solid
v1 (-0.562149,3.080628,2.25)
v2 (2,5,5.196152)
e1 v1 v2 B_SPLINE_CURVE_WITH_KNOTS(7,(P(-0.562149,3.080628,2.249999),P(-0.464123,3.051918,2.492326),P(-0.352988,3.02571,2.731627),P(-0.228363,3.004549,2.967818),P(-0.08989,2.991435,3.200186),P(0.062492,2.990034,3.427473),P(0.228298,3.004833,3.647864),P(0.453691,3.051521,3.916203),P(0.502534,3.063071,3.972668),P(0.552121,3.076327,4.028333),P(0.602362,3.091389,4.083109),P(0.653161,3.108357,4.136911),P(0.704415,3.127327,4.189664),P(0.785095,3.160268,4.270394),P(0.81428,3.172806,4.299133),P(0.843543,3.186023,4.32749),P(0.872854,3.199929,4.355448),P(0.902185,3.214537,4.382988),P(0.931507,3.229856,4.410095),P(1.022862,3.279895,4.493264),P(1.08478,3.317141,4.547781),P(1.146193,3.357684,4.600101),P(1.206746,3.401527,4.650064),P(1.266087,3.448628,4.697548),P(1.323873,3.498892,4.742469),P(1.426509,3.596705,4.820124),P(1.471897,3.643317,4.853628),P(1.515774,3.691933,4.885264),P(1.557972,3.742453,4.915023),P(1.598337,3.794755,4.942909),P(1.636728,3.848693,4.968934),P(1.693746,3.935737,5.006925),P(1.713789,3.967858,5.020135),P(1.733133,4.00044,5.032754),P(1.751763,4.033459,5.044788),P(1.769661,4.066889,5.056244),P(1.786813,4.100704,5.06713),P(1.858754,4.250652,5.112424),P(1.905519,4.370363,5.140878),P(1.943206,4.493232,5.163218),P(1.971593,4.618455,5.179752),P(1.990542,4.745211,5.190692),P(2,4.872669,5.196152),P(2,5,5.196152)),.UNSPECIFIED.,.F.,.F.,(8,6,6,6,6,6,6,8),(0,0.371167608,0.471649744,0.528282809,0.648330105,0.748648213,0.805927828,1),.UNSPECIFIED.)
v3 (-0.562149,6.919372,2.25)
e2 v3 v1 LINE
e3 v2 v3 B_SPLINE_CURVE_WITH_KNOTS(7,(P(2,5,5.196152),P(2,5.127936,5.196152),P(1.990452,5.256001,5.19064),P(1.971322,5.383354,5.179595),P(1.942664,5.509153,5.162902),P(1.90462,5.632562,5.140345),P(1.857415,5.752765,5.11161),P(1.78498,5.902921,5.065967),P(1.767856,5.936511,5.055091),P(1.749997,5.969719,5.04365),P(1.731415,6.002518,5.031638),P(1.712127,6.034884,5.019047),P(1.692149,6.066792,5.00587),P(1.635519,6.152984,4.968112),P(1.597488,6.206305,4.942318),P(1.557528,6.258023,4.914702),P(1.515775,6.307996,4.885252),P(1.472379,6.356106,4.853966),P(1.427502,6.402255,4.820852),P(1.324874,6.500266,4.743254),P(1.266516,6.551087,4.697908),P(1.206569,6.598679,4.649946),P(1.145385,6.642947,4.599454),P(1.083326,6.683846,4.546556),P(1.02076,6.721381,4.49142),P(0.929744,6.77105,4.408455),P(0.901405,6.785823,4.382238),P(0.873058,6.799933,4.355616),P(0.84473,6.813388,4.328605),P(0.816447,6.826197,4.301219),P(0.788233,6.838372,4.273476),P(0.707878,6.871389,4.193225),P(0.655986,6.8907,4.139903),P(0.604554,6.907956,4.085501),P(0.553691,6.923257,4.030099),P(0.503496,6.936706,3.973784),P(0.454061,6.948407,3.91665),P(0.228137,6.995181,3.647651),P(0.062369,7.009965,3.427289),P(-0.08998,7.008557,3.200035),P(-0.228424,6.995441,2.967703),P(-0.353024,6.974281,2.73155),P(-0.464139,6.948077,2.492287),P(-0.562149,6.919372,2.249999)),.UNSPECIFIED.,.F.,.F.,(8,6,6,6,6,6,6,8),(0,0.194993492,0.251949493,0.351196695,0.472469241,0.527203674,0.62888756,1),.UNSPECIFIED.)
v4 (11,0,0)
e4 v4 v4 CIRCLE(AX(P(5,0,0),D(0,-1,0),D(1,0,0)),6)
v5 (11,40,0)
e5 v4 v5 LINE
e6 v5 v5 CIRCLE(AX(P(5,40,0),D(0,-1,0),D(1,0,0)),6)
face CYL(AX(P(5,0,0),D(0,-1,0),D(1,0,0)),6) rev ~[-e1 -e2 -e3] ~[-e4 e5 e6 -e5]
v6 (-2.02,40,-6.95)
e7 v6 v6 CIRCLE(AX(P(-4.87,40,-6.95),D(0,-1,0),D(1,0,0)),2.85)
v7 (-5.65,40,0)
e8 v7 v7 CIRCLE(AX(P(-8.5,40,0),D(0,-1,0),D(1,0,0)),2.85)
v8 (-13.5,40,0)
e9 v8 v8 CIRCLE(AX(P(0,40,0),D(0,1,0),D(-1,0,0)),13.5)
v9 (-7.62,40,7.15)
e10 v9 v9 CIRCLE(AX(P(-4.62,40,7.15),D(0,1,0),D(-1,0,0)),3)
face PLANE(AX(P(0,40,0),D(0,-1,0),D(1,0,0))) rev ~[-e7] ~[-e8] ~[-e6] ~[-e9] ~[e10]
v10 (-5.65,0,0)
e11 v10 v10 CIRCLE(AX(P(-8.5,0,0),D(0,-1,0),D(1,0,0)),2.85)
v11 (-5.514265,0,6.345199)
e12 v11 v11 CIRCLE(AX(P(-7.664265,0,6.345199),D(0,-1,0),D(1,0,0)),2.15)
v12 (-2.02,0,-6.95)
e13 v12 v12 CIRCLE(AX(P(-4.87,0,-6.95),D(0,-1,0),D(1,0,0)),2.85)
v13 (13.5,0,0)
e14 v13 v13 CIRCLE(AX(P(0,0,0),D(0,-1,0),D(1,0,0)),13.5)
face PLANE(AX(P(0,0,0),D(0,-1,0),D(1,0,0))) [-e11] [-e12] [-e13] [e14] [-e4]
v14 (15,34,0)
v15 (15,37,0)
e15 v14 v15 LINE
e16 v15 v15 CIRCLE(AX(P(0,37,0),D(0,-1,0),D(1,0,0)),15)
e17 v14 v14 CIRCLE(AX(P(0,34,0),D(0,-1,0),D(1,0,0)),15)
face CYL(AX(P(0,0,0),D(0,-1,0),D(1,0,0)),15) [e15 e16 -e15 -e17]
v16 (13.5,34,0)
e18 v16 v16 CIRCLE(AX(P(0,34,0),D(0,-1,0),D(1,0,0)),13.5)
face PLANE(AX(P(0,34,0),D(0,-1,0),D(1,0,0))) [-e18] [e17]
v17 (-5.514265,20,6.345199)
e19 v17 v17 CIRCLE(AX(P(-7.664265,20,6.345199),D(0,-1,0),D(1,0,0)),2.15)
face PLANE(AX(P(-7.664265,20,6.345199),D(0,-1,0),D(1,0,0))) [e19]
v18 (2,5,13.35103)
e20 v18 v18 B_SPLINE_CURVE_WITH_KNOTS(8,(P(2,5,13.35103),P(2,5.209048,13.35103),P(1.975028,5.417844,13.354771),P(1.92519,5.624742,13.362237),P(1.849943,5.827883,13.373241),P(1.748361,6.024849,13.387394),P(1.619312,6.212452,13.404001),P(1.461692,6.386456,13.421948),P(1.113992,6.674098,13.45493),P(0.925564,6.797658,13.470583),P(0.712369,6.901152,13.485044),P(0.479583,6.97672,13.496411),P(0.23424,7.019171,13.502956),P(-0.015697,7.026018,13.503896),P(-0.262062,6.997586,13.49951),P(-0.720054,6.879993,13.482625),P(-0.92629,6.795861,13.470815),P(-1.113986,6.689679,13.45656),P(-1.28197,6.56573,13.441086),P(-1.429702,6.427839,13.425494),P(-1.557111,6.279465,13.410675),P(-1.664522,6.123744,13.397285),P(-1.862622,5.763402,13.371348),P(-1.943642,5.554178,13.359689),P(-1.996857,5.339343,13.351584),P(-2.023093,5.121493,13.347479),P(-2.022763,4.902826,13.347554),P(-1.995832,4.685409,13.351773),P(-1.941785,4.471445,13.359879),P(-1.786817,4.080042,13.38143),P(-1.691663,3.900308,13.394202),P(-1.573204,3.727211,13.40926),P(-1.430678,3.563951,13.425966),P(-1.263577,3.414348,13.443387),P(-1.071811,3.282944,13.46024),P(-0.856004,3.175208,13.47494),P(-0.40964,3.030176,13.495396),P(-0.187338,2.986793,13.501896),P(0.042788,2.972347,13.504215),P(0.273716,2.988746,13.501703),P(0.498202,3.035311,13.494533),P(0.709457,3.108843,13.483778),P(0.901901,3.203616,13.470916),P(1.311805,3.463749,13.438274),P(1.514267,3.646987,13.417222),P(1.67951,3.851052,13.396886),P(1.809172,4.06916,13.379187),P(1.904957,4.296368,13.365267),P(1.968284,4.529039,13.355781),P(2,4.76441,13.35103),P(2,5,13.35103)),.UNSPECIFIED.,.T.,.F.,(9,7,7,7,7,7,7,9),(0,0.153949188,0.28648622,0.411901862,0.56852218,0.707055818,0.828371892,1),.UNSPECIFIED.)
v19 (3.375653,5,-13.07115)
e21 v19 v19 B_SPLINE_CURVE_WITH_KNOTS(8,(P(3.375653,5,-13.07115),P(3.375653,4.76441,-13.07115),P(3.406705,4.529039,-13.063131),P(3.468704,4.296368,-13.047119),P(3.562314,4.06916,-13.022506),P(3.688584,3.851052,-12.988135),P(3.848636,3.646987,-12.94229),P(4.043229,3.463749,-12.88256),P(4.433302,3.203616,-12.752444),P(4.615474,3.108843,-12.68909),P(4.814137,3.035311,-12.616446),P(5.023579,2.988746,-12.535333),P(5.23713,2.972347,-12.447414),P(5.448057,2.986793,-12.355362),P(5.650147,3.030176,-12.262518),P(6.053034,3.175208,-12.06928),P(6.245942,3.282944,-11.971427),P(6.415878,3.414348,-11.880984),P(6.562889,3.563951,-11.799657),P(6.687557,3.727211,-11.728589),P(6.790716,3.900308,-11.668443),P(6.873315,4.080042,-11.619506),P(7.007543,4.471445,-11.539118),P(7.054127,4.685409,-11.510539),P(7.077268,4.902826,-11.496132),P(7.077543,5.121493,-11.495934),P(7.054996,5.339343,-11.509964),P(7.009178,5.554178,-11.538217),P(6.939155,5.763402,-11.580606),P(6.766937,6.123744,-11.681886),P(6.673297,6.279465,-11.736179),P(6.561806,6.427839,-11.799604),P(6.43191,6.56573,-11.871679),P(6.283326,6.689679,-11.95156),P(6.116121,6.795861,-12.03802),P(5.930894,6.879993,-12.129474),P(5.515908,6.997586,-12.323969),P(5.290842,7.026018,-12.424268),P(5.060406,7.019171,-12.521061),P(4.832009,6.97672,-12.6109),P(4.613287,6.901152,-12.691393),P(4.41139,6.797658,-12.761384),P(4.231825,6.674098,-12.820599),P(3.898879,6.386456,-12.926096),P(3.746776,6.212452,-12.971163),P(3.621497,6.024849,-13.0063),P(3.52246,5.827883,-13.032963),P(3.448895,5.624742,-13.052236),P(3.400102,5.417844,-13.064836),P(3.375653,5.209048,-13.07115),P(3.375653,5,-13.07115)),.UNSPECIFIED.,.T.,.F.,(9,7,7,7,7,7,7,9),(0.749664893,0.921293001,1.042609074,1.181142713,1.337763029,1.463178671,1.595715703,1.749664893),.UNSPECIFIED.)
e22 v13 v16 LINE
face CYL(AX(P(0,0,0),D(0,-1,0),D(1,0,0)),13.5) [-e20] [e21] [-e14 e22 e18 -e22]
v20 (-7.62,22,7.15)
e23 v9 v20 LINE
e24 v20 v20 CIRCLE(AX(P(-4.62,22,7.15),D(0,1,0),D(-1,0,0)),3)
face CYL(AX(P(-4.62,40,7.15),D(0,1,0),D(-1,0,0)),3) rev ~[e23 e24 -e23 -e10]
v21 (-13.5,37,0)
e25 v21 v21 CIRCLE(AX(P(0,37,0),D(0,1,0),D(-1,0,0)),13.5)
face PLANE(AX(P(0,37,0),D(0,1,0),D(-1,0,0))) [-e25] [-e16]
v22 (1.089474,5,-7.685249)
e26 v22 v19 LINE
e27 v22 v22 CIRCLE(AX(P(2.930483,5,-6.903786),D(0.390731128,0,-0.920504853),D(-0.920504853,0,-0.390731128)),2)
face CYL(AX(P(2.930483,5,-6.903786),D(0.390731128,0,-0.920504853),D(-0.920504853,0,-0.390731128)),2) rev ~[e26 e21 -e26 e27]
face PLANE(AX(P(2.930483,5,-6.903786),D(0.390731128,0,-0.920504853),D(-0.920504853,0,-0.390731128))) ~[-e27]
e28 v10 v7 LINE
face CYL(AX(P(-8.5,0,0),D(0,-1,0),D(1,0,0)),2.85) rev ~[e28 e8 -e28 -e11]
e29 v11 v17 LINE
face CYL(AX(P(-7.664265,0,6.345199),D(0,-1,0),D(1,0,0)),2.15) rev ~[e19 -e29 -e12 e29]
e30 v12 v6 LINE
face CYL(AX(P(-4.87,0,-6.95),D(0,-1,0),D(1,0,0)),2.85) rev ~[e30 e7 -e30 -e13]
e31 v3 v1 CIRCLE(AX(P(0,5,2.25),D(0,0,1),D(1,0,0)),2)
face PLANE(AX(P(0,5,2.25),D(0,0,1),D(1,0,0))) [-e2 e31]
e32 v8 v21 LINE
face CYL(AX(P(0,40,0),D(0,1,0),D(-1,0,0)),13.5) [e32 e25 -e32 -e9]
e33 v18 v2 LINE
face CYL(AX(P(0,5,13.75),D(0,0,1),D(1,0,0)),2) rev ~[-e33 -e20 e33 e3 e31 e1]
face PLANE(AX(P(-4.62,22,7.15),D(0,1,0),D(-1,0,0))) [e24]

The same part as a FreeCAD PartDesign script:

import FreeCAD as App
import Part
import Sketcher

V = App.Vector
Q = App.Units.Quantity

doc = App.newDocument("Part")
params = doc.addObject("Spreadsheet::Sheet", "Params")
for row, (alias, value) in enumerate([
    ("sketch1_diameter", "30 mm"),
    ("pad1_length", "40 mm"),
    ("sketch2_diameter", "27 mm"),
    ("pocket1_length", "34 mm"),
    ("sketch3_diameter", "27 mm"),
    ("pocket2_length", "3 mm"),
    ("sketch4_diameter", "12 mm"),
    ("sketch5_diameter", "5.7 mm"),
    ("sketch6_diameter", "5.7 mm"),
    ("sketch7_diameter", "4.3 mm"),
    ("pocket6_length", "20 mm"),
    ("sketch8_diameter", "6 mm"),
    ("pocket7_length", "18 mm"),
    ("sketch9_diameter", "4 mm"),
    ("pocket8_length", "11.5 mm"),
    ("sketch10_length", "6 mm"),
    ("sketch10_length2", "2 mm"),
    ("groove_angle", "360 deg"),
], start=1):
    params.set(f"A{row}", alias)
    params.set(f"B{row}", "=" + value)
    params.setAlias(f"B{row}", alias)

body = doc.addObject("PartDesign::Body", "Body")

sketch1 = body.newObject("Sketcher::SketchObject", "Sketch")
sketch1.AttachmentSupport = (doc.getObject("XZ_Plane"), [""])
sketch1.MapMode = "FlatFace"
sketch1.addGeometry(Part.Circle(V(0, 0, 0), V(0, 0, 1), 15), False)
sketch1.addConstraint([
    Sketcher.Constraint("Coincident", 0, 3, -1, 1),
    Sketcher.Constraint("Diameter", 0, Q("30 mm")),
])
sketch1.setExpression("Constraints[1]", "Params.sketch1_diameter")
pad1 = body.newObject("PartDesign::Pad", "Pad")
pad1.Profile = sketch1
pad1.setExpression("Length", "Params.pad1_length")
pad1.Reversed = True

sketch2 = body.newObject("Sketcher::SketchObject", "Sketch001")
sketch2.AttachmentSupport = (doc.getObject("XZ_Plane"), [""])
sketch2.MapMode = "FlatFace"
sketch2.addGeometry([
    Part.Circle(V(0, 0, 0), V(0, 0, 1), 25),
    Part.Circle(V(0, 0, 0), V(0, 0, 1), 14),
], False)
sketch2.addConstraint([
    Sketcher.Constraint("Coincident", 0, 3, -1, 1),
    Sketcher.Constraint("Coincident", 1, 3, -1, 1),
    Sketcher.Constraint("Diameter", 1, Q("27 mm")),
    Sketcher.Constraint("Diameter", 0, Q("50.908453 mm")),
])
sketch2.setExpression("Constraints[2]", "Params.sketch2_diameter")
pocket1 = body.newObject("PartDesign::Pocket", "Pocket")
pocket1.Profile = sketch2
pocket1.setExpression("Length", "Params.pocket1_length")

sketch3 = body.newObject("Sketcher::SketchObject", "Sketch002")
sketch3.AttachmentSupport = (doc.getObject("XZ_Plane"), [""])
sketch3.MapMode = "FlatFace"
sketch3.AttachmentOffset = App.Placement(V(0, 0, -40), App.Rotation())
sketch3.addGeometry([
    Part.Circle(V(0, 0, 0), V(0, 0, 1), 19),
    Part.Circle(V(0, 0, 0), V(0, 0, 1), 14),
], False)
sketch3.addConstraint([
    Sketcher.Constraint("Coincident", 0, 3, -1, 1),
    Sketcher.Constraint("Coincident", 1, 3, -1, 1),
    Sketcher.Constraint("Diameter", 1, Q("27 mm")),
    Sketcher.Constraint("Diameter", 0, Q("37.468262 mm")),
])
sketch3.setExpression("Constraints[2]", "Params.sketch3_diameter")
pocket2 = body.newObject("PartDesign::Pocket", "Pocket001")
pocket2.Profile = sketch3
pocket2.setExpression("Length", "Params.pocket2_length")
pocket2.Reversed = True

sketch4 = body.newObject("Sketcher::SketchObject", "Sketch003")
sketch4.AttachmentSupport = (doc.getObject("XZ_Plane"), [""])
sketch4.MapMode = "FlatFace"
sketch4.addGeometry(Part.Circle(V(5, 0, 0), V(0, 0, 1), 6), False)
sketch4.addConstraint([
    Sketcher.Constraint("PointOnObject", 0, 3, -1),
    Sketcher.Constraint("Diameter", 0, Q("12 mm")),
    Sketcher.Constraint("DistanceX", -1, 1, 0, 3, Q("5 mm")),
])
sketch4.setExpression("Constraints[1]", "Params.sketch4_diameter")
pocket3 = body.newObject("PartDesign::Pocket", "Pocket002")
pocket3.Profile = sketch4
pocket3.Type = "ThroughAll"

sketch5 = body.newObject("Sketcher::SketchObject", "Sketch004")
sketch5.AttachmentSupport = (doc.getObject("XZ_Plane"), [""])
sketch5.MapMode = "FlatFace"
sketch5.addGeometry(Part.Circle(V(-4.9, -7, 0), V(0, 0, 1), 2.9), False)
sketch5.addConstraint([
    Sketcher.Constraint("Diameter", 0, Q("5.7 mm")),
    Sketcher.Constraint("DistanceX", 0, 3, -1, 1, Q("4.87 mm")),
    Sketcher.Constraint("DistanceY", 0, 3, -1, 1, Q("6.95 mm")),
])
sketch5.setExpression("Constraints[0]", "Params.sketch5_diameter")
pocket4 = body.newObject("PartDesign::Pocket", "Pocket003")
pocket4.Profile = sketch5
pocket4.Type = "ThroughAll"

sketch6 = body.newObject("Sketcher::SketchObject", "Sketch005")
sketch6.AttachmentSupport = (doc.getObject("XZ_Plane"), [""])
sketch6.MapMode = "FlatFace"
sketch6.addGeometry(Part.Circle(V(-8.5, 0, 0), V(0, 0, 1), 2.9), False)
sketch6.addConstraint([
    Sketcher.Constraint("PointOnObject", 0, 3, -1),
    Sketcher.Constraint("Diameter", 0, Q("5.7 mm")),
    Sketcher.Constraint("DistanceX", 0, 3, -1, 1, Q("8.5 mm")),
])
sketch6.setExpression("Constraints[1]", "Params.sketch6_diameter")
pocket5 = body.newObject("PartDesign::Pocket", "Pocket004")
pocket5.Profile = sketch6
pocket5.Type = "ThroughAll"

sketch7 = body.newObject("Sketcher::SketchObject", "Sketch006")
sketch7.AttachmentSupport = (doc.getObject("XZ_Plane"), [""])
sketch7.MapMode = "FlatFace"
sketch7.addGeometry(Part.Circle(V(-7.7, 6.3, 0), V(0, 0, 1), 2.1), False)
sketch7.addConstraint([
    Sketcher.Constraint("Diameter", 0, Q("4.3 mm")),
    Sketcher.Constraint("DistanceY", -1, 1, 0, 3, Q("6.345199 mm")),
    Sketcher.Constraint("DistanceX", 0, 3, -1, 1, Q("7.664265 mm")),
])
sketch7.setExpression("Constraints[0]", "Params.sketch7_diameter")
pocket6 = body.newObject("PartDesign::Pocket", "Pocket005")
pocket6.Profile = sketch7
pocket6.setExpression("Length", "Params.pocket6_length")

sketch8 = body.newObject("Sketcher::SketchObject", "Sketch007")
sketch8.AttachmentSupport = (doc.getObject("XZ_Plane"), [""])
sketch8.MapMode = "FlatFace"
sketch8.AttachmentOffset = App.Placement(V(0, 0, -40), App.Rotation())
sketch8.addGeometry(Part.Circle(V(-4.6, 7.2, 0), V(0, 0, 1), 3), False)
sketch8.addConstraint([
    Sketcher.Constraint("Diameter", 0, Q("6 mm")),
    Sketcher.Constraint("DistanceX", 0, 3, -1, 1, Q("4.62 mm")),
    Sketcher.Constraint("DistanceY", -1, 1, 0, 3, Q("7.15 mm")),
])
sketch8.setExpression("Constraints[0]", "Params.sketch8_diameter")
pocket7 = body.newObject("PartDesign::Pocket", "Pocket006")
pocket7.Profile = sketch8
pocket7.setExpression("Length", "Params.pocket7_length")
pocket7.Reversed = True

sketch9 = body.newObject("Sketcher::SketchObject", "Sketch008")
sketch9.AttachmentSupport = (doc.getObject("XY_Plane"), [""])
sketch9.MapMode = "FlatFace"
sketch9.AttachmentOffset = App.Placement(V(0, 0, 13.75), App.Rotation())
sketch9.addGeometry(Part.Circle(V(0, 5, 0), V(0, 0, 1), 2), False)
sketch9.addConstraint([
    Sketcher.Constraint("PointOnObject", 0, 3, -2),
    Sketcher.Constraint("Diameter", 0, Q("4 mm")),
    Sketcher.Constraint("DistanceY", -1, 1, 0, 3, Q("5 mm")),
])
sketch9.setExpression("Constraints[1]", "Params.sketch9_diameter")
pocket8 = body.newObject("PartDesign::Pocket", "Pocket007")
pocket8.Profile = sketch9
pocket8.setExpression("Length", "Params.pocket8_length")

sketch10 = body.newObject("Sketcher::SketchObject", "Sketch009")
sketch10.AttachmentSupport = (doc.getObject("XZ_Plane"), [""])
sketch10.MapMode = "FlatFace"
sketch10.AttachmentOffset = App.Placement(V(0, 0, -5), App.Rotation())
sketch10.addGeometry([
    Part.LineSegment(V(5.3, -12.4, 0), V(2.9, -6.9, 0)),
    Part.LineSegment(V(2.9, -6.9, 0), V(1.1, -7.7, 0)),
    Part.LineSegment(V(1.1, -7.7, 0), V(3.4, -13.2, 0)),
    Part.LineSegment(V(3.4, -13.2, 0), V(5.3, -12.4, 0)),
], False)
sketch10.addGeometry(Part.LineSegment(V(2.9, -6.9, 0), V(5.3, -12.4, 0)), True)
sketch10.addConstraint([
    Sketcher.Constraint("Coincident", 0, 2, 1, 1),
    Sketcher.Constraint("Coincident", 1, 2, 2, 1),
    Sketcher.Constraint("Coincident", 2, 2, 3, 1),
    Sketcher.Constraint("Coincident", 3, 2, 0, 1),
    Sketcher.Constraint("Coincident", 4, 1, 0, 2),
    Sketcher.Constraint("Coincident", 4, 2, 3, 2),
    Sketcher.Constraint("Perpendicular", 0, 1),
    Sketcher.Constraint("Perpendicular", 1, 2),
    Sketcher.Constraint("Perpendicular", 2, 3),
    Sketcher.Constraint("Angle", 0, Q("113 deg")),
    Sketcher.Constraint("Distance", 0, Q("6 mm")),
    Sketcher.Constraint("Distance", 1, Q("2 mm")),
    Sketcher.Constraint("DistanceY", 1, 2, -1, 1, Q("7.685249 mm")),
    Sketcher.Constraint("DistanceX", -1, 1, 2, 2, Q("3.433861 mm")),
])
sketch10.setExpression("Constraints[10]", "Params.sketch10_length")
sketch10.setExpression("Constraints[11]", "Params.sketch10_length2")
groove = body.newObject("PartDesign::Groove", "Groove")
groove.Profile = sketch10
groove.ReferenceAxis = (sketch10, ["Axis0"])
groove.setExpression("Angle", "Params.groove_angle")

doc.recompute()
